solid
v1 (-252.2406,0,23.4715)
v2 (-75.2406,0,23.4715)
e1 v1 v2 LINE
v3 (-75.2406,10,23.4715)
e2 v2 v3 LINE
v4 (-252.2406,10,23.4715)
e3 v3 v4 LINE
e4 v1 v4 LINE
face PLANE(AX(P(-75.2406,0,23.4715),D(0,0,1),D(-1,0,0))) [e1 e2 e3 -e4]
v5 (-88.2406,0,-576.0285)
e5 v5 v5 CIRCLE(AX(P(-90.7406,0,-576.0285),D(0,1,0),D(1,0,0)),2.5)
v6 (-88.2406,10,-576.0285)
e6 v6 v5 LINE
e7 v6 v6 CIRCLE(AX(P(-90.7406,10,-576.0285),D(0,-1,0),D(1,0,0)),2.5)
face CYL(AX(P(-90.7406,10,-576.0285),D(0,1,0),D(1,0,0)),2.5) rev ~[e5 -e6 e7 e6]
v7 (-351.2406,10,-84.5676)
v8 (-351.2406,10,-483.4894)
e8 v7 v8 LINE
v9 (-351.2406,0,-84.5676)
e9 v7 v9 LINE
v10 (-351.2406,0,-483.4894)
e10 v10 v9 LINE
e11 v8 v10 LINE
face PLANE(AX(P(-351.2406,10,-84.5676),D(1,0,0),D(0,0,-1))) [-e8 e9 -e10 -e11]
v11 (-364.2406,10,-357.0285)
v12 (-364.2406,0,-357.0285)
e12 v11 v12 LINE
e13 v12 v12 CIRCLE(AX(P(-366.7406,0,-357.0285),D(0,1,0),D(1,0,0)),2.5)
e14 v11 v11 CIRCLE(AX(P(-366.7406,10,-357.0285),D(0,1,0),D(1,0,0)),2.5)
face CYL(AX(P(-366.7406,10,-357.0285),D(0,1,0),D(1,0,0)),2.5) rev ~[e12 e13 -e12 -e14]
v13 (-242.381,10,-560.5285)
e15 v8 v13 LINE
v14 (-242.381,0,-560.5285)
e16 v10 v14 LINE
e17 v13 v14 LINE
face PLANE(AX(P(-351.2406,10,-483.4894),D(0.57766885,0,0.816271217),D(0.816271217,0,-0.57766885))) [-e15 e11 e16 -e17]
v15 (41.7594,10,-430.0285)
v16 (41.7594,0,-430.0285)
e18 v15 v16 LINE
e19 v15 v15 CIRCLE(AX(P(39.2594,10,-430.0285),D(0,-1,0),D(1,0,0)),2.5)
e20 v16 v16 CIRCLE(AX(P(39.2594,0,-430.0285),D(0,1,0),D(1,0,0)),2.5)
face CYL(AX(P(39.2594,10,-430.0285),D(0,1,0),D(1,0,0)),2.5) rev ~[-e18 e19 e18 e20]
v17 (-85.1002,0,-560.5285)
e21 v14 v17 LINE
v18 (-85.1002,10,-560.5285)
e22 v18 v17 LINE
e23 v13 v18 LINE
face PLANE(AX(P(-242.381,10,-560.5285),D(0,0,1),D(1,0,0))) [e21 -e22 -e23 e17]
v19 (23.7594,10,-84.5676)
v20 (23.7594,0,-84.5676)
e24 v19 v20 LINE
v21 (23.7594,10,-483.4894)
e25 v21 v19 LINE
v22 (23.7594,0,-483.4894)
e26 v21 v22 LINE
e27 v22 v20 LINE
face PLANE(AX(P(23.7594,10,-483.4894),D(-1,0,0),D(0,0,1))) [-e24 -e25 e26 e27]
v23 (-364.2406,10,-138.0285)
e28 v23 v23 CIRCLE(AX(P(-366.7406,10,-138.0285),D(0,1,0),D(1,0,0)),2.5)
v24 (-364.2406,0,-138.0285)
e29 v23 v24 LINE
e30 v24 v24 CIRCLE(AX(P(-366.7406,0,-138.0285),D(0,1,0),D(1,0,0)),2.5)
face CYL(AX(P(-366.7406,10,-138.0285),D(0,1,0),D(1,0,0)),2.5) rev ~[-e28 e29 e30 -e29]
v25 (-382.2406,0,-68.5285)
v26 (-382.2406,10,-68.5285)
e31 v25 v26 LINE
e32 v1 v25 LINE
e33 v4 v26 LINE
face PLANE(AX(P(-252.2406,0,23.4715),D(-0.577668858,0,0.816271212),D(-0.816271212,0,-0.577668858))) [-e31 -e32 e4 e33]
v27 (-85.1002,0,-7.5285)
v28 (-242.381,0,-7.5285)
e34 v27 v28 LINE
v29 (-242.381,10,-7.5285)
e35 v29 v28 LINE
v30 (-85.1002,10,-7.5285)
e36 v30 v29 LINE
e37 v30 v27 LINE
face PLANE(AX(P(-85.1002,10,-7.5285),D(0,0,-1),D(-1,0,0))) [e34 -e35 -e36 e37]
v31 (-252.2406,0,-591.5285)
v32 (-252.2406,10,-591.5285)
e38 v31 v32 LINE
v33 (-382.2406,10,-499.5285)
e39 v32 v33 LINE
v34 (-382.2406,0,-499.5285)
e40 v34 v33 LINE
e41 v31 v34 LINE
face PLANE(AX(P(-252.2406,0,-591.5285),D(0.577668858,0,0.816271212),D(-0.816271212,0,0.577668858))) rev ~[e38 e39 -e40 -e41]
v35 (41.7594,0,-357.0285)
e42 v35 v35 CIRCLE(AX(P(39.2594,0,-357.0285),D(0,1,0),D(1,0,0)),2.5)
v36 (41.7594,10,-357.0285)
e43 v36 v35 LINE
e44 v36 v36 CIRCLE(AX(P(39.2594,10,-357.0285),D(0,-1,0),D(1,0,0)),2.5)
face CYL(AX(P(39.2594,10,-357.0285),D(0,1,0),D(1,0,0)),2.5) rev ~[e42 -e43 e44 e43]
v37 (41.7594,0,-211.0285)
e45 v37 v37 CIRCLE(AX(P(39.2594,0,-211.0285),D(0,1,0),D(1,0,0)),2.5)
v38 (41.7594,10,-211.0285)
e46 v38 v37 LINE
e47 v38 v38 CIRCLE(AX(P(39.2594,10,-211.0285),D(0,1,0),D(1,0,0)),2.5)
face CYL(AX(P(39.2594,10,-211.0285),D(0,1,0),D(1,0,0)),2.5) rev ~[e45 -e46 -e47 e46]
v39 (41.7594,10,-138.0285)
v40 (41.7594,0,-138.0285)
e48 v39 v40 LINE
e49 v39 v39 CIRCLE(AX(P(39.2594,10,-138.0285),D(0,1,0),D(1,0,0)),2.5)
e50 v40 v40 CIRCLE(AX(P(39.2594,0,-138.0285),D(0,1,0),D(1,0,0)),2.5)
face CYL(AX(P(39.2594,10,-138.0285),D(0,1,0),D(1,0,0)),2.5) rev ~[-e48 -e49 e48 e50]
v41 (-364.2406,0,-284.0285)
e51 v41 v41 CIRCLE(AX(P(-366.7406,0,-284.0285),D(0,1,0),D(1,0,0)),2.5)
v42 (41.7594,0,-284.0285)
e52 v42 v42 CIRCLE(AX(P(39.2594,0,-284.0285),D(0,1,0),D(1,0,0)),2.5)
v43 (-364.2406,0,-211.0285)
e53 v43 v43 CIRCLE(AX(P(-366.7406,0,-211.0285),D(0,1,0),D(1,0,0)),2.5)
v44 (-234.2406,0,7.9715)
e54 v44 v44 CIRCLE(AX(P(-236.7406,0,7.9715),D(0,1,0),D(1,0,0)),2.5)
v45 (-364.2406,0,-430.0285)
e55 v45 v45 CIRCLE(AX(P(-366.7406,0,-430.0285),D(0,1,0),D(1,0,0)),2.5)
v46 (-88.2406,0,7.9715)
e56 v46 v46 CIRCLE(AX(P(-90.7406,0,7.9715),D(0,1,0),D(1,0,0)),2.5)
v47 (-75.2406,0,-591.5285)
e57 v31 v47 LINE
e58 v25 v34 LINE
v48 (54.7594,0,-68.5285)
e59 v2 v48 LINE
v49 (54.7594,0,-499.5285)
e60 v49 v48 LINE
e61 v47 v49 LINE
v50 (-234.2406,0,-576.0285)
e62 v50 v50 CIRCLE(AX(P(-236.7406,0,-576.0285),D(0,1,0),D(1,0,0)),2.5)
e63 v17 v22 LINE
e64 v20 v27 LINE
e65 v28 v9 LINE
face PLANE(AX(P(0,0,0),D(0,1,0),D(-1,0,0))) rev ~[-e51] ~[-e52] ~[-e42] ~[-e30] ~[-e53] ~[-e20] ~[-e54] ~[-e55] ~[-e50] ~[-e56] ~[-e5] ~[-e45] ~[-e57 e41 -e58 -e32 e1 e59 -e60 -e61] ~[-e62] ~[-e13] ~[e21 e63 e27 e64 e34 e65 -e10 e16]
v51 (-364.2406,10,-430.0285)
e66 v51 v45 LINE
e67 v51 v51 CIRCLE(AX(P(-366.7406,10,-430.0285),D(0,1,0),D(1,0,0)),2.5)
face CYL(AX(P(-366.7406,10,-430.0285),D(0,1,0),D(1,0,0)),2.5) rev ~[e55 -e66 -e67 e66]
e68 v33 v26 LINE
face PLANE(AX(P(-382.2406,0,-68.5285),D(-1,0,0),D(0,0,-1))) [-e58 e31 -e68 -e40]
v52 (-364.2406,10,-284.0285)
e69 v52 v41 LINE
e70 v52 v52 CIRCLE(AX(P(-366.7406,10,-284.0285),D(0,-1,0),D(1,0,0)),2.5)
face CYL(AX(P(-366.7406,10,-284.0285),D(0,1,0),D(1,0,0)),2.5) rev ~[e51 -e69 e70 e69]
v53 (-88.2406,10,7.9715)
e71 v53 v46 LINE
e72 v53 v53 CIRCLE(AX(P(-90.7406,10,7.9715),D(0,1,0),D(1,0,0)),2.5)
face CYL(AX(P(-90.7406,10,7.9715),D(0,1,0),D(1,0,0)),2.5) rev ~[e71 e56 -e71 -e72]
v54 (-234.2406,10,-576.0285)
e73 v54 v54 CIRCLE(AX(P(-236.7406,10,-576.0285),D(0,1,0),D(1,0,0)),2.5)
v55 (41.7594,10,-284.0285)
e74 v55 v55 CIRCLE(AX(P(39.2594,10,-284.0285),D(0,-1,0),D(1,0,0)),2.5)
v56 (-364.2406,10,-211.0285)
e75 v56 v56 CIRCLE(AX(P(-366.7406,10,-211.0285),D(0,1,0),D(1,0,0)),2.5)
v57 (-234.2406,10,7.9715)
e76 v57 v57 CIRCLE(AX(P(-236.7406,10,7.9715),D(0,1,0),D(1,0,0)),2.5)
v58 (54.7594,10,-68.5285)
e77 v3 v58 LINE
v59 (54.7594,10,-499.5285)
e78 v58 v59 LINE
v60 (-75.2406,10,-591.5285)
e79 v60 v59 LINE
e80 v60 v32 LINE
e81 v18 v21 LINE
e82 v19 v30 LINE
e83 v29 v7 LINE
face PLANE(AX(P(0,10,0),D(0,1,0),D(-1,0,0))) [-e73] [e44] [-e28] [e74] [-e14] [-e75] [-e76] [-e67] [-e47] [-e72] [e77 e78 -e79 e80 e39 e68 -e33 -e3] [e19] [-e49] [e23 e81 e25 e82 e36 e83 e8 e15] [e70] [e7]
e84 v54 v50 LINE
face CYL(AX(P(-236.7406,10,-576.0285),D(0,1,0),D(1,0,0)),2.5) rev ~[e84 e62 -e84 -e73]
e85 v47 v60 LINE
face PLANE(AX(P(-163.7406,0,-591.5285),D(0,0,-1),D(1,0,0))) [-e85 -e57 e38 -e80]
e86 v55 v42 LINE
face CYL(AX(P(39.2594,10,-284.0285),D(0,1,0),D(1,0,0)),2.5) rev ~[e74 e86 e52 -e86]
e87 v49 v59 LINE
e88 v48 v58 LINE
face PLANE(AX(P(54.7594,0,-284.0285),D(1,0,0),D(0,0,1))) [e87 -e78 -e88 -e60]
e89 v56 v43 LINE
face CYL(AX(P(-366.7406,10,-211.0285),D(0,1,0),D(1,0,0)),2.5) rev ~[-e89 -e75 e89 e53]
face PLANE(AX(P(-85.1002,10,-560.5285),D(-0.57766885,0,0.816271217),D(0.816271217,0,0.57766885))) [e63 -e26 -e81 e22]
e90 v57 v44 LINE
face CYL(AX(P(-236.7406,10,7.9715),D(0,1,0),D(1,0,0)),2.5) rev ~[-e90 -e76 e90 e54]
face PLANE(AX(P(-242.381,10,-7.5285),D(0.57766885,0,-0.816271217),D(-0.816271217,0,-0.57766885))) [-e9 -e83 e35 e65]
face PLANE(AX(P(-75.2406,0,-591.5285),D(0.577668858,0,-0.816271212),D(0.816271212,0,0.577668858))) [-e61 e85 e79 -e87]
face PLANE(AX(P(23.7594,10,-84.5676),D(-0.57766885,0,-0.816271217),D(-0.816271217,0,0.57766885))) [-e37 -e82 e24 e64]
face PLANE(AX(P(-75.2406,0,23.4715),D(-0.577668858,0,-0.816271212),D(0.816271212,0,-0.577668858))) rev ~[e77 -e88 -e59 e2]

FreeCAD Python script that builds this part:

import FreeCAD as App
import Part
import Sketcher

V = App.Vector
Q = App.Units.Quantity

doc = App.newDocument("Part")
body = doc.addObject("PartDesign::Body", "Body")

# Sketch on XZ plane
sketch1 = body.newObject("Sketcher::SketchObject", "Sketch")
sketch1.AttachmentSupport = (doc.getObject("XZ_Plane"), [""])
sketch1.MapMode = "FlatFace"
sketch1.addGeometry(Part.LineSegment(V(-75, 23, 0), V(55, -69, 0)), False)
sketch1.addGeometry(Part.LineSegment(V(55, -69, 0), V(55, -500, 0)), False)
sketch1.addGeometry(Part.LineSegment(V(55, -500, 0), V(-75, -592, 0)), False)
sketch1.addGeometry(Part.LineSegment(V(-75, -592, 0), V(-252, -592, 0)), False)
sketch1.addGeometry(Part.LineSegment(V(-252, -592, 0), V(-382, -500, 0)), False)
sketch1.addGeometry(Part.LineSegment(V(-382, -500, 0), V(-382, -69, 0)), False)
sketch1.addGeometry(Part.LineSegment(V(-382, -69, 0), V(-252, 23, 0)), False)
sketch1.addGeometry(Part.LineSegment(V(-252, 23, 0), V(-75, 23, 0)), False)
sketch1.addConstraint(Sketcher.Constraint("Coincident", 0, 2, 1, 1))
sketch1.addConstraint(Sketcher.Constraint("Coincident", 1, 2, 2, 1))
sketch1.addConstraint(Sketcher.Constraint("Coincident", 2, 2, 3, 1))
sketch1.addConstraint(Sketcher.Constraint("Coincident", 3, 2, 4, 1))
sketch1.addConstraint(Sketcher.Constraint("Coincident", 4, 2, 5, 1))
sketch1.addConstraint(Sketcher.Constraint("Coincident", 5, 2, 6, 1))
sketch1.addConstraint(Sketcher.Constraint("Coincident", 6, 2, 7, 1))
sketch1.addConstraint(Sketcher.Constraint("Coincident", 7, 2, 0, 1))
sketch1.addConstraint(Sketcher.Constraint("Vertical", 1))
sketch1.addConstraint(Sketcher.Constraint("Horizontal", 3))
sketch1.addConstraint(Sketcher.Constraint("Vertical", 5))
sketch1.addConstraint(Sketcher.Constraint("Horizontal", 7))
sketch1.addConstraint(Sketcher.Constraint("Parallel", 0, 4))
sketch1.addConstraint(Sketcher.Constraint("Parallel", 2, 6))
sketch1.addConstraint(Sketcher.Constraint("Horizontal", 1, 2, 4, 2))
sketch1.addConstraint(Sketcher.Constraint("Horizontal", 0, 2, 5, 2))
sketch1.addConstraint(Sketcher.Constraint("Vertical", 3, 2, 6, 2))
sketch1.addConstraint(Sketcher.Constraint("Vertical", 2, 2, 7, 2))
sketch1.addConstraint(Sketcher.Constraint("DistanceX", 4, 2, 1, 2, Q("437 mm")))
sketch1.addConstraint(Sketcher.Constraint("DistanceY", 3, 2, 6, 2, Q("615 mm")))
sketch1.addConstraint(Sketcher.Constraint("DistanceX", 3, 2, 3, 1, Q("177 mm")))
sketch1.addConstraint(Sketcher.Constraint("DistanceY", 1, 2, 1, 1, Q("431 mm")))
sketch1.addConstraint(Sketcher.Constraint("DistanceX", -1, 1, 0, 2, Q("54.7594 mm")))
sketch1.addConstraint(Sketcher.Constraint("DistanceY", 0, 2, -1, 1, Q("68.5285 mm")))
pad1 = body.newObject("PartDesign::Pad", "Pad")
pad1.Profile = sketch1
pad1.Length = 10
pad1.Reversed = True

# Sketch on XZ plane
sketch2 = body.newObject("Sketcher::SketchObject", "Sketch001")
sketch2.AttachmentSupport = (doc.getObject("XZ_Plane"), [""])
sketch2.MapMode = "FlatFace"
sketch2.AttachmentOffset = App.Placement(V(0, 0, -10), App.Rotation())
sketch2.addGeometry(Part.Circle(V(-90.7, -576, 0), V(0, 0, 1), 2.5), False)
sketch2.addGeometry(Part.Circle(V(-366.7, -284, 0), V(0, 0, 1), 2.5), False)
sketch2.addGeometry(Part.Circle(V(39.3, -284, 0), V(0, 0, 1), 2.5), False)
sketch2.addGeometry(Part.Circle(V(39.3, -430, 0), V(0, 0, 1), 2.5), False)
sketch2.addGeometry(Part.Circle(V(39.3, -357, 0), V(0, 0, 1), 2.5), False)
sketch2.addGeometry(Part.Circle(V(39.3, -211, 0), V(0, 0, 1), 2.5), False)
sketch2.addGeometry(Part.Circle(V(-366.7, -357, 0), V(0, 0, 1), 2.5), False)
sketch2.addGeometry(Part.Circle(V(-366.7, -211, 0), V(0, 0, 1), 2.5), False)
sketch2.addGeometry(Part.Circle(V(39.3, -138, 0), V(0, 0, 1), 2.5), False)
sketch2.addGeometry(Part.Circle(V(-90.7, 8, 0), V(0, 0, 1), 2.5), False)
sketch2.addGeometry(Part.Circle(V(-366.7, -430, 0), V(0, 0, 1), 2.5), False)
sketch2.addGeometry(Part.Circle(V(-236.7, -576, 0), V(0, 0, 1), 2.5), False)
sketch2.addGeometry(Part.Circle(V(-236.7, 8, 0), V(0, 0, 1), 2.5), False)
sketch2.addGeometry(Part.Circle(V(-366.7, -138, 0), V(0, 0, 1), 2.5), False)
sketch2.addConstraint(Sketcher.Constraint("Equal", 0, 1))
sketch2.addConstraint(Sketcher.Constraint("Equal", 1, 2))
sketch2.addConstraint(Sketcher.Constraint("Equal", 2, 3))
sketch2.addConstraint(Sketcher.Constraint("Equal", 3, 4))
sketch2.addConstraint(Sketcher.Constraint("Equal", 4, 5))
sketch2.addConstraint(Sketcher.Constraint("Equal", 5, 6))
sketch2.addConstraint(Sketcher.Constraint("Equal", 6, 7))
sketch2.addConstraint(Sketcher.Constraint("Equal", 7, 8))
sketch2.addConstraint(Sketcher.Constraint("Equal", 8, 9))
sketch2.addConstraint(Sketcher.Constraint("Equal", 9, 10))
sketch2.addConstraint(Sketcher.Constraint("Equal", 10, 11))
sketch2.addConstraint(Sketcher.Constraint("Equal", 11, 12))
sketch2.addConstraint(Sketcher.Constraint("Equal", 12, 13))
sketch2.addConstraint(Sketcher.Constraint("Horizontal", 1, 3, 2, 3))
sketch2.addConstraint(Sketcher.Constraint("Horizontal", 4, 3, 6, 3))
sketch2.addConstraint(Sketcher.Constraint("Horizontal", 5, 3, 7, 3))
sketch2.addConstraint(Sketcher.Constraint("Horizontal", 3, 3, 10, 3))
sketch2.addConstraint(Sketcher.Constraint("Horizontal", 0, 3, 11, 3))
sketch2.addConstraint(Sketcher.Constraint("Horizontal", 9, 3, 12, 3))
sketch2.addConstraint(Sketcher.Constraint("Horizontal", 8, 3, 13, 3))
sketch2.addConstraint(Sketcher.Constraint("Vertical", 2, 3, 3, 3))
sketch2.addConstraint(Sketcher.Constraint("Vertical", 3, 3, 4, 3))
sketch2.addConstraint(Sketcher.Constraint("Vertical", 4, 3, 5, 3))
sketch2.addConstraint(Sketcher.Constraint("Vertical", 1, 3, 6, 3))
sketch2.addConstraint(Sketcher.Constraint("Vertical", 6, 3, 7, 3))
sketch2.addConstraint(Sketcher.Constraint("Vertical", 5, 3, 8, 3))
sketch2.addConstraint(Sketcher.Constraint("Vertical", 0, 3, 9, 3))
sketch2.addConstraint(Sketcher.Constraint("Vertical", 7, 3, 10, 3))
sketch2.addConstraint(Sketcher.Constraint("Vertical", 11, 3, 12, 3))
sketch2.addConstraint(Sketcher.Constraint("Vertical", 10, 3, 13, 3))
sketch2.addConstraint(Sketcher.Constraint("Diameter", 0, Q("5 mm")))
sketch2.addConstraint(Sketcher.Constraint("DistanceX", 0, 3, 2, 3, Q("130 mm")))
sketch2.addConstraint(Sketcher.Constraint("DistanceY", 3, 3, 2, 3, Q("146 mm")))
sketch2.addConstraint(Sketcher.Constraint("DistanceY", 0, 3, 3, 3, Q("146 mm")))
sketch2.addConstraint(Sketcher.Constraint("DistanceY", 4, 3, 2, 3, Q("73 mm")))
sketch2.addConstraint(Sketcher.Constraint("DistanceY", 2, 3, 5, 3, Q("73 mm")))
sketch2.addConstraint(Sketcher.Constraint("DistanceY", 5, 3, 8, 3, Q("73 mm")))
sketch2.addConstraint(Sketcher.Constraint("DistanceY", 8, 3, 9, 3, Q("146 mm")))
sketch2.addConstraint(Sketcher.Constraint("DistanceX", 11, 3, 0, 3, Q("146 mm")))
sketch2.addConstraint(Sketcher.Constraint("DistanceX", 10, 3, 11, 3, Q("130 mm")))
sketch2.addConstraint(Sketcher.Constraint("DistanceX", 0, 3, -1, 1, Q("90.7406 mm")))
sketch2.addConstraint(Sketcher.Constraint("DistanceY", 0, 3, -1, 1, Q("576.0285 mm")))
pocket1 = body.newObject("PartDesign::Pocket", "Pocket")
pocket1.Profile = sketch2
pocket1.Length = 10
pocket1.Reversed = True

# Sketch on XZ plane
sketch3 = body.newObject("Sketcher::SketchObject", "Sketch002")
sketch3.AttachmentSupport = (doc.getObject("XZ_Plane"), [""])
sketch3.MapMode = "FlatFace"
sketch3.AttachmentOffset = App.Placement(V(0, 0, -10), App.Rotation())
sketch3.addGeometry(Part.LineSegment(V(-351, -483, 0), V(-351, -85, 0)), False)
sketch3.addGeometry(Part.LineSegment(V(-351, -85, 0), V(-242, -8, 0)), False)
sketch3.addGeometry(Part.LineSegment(V(-242, -8, 0), V(-85, -8, 0)), False)
sketch3.addGeometry(Part.LineSegment(V(-85, -8, 0), V(24, -85, 0)), False)
sketch3.addGeometry(Part.LineSegment(V(24, -85, 0), V(24, -483, 0)), False)
sketch3.addGeometry(Part.LineSegment(V(24, -483, 0), V(-85, -561, 0)), False)
sketch3.addGeometry(Part.LineSegment(V(-85, -561, 0), V(-242, -561, 0)), False)
sketch3.addGeometry(Part.LineSegment(V(-242, -561, 0), V(-351, -483, 0)), False)
sketch3.addConstraint(Sketcher.Constraint("Coincident", 0, 2, 1, 1))
sketch3.addConstraint(Sketcher.Constraint("Coincident", 1, 2, 2, 1))
sketch3.addConstraint(Sketcher.Constraint("Coincident", 2, 2, 3, 1))
sketch3.addConstraint(Sketcher.Constraint("Coincident", 3, 2, 4, 1))
sketch3.addConstraint(Sketcher.Constraint("Coincident", 4, 2, 5, 1))
sketch3.addConstraint(Sketcher.Constraint("Coincident", 5, 2, 6, 1))
sketch3.addConstraint(Sketcher.Constraint("Coincident", 6, 2, 7, 1))
sketch3.addConstraint(Sketcher.Constraint("Coincident", 7, 2, 0, 1))
sketch3.addConstraint(Sketcher.Constraint("Vertical", 0))
sketch3.addConstraint(Sketcher.Constraint("Horizontal", 2))
sketch3.addConstraint(Sketcher.Constraint("Vertical", 4))
sketch3.addConstraint(Sketcher.Constraint("Horizontal", 6))
sketch3.addConstraint(Sketcher.Constraint("Parallel", 1, 5))
sketch3.addConstraint(Sketcher.Constraint("Parallel", 3, 7))
sketch3.addConstraint(Sketcher.Constraint("Horizontal", 0, 2, 3, 2))
sketch3.addConstraint(Sketcher.Constraint("Horizontal", 4, 2, 7, 2))
sketch3.addConstraint(Sketcher.Constraint("Vertical", 2, 2, 5, 2))
sketch3.addConstraint(Sketcher.Constraint("Vertical", 1, 2, 6, 2))
sketch3.addConstraint(Sketcher.Constraint("DistanceX", 0, 2, 3, 2, Q("375 mm")))
sketch3.addConstraint(Sketcher.Constraint("DistanceY", 5, 2, 2, 2, Q("553 mm")))
sketch3.addConstraint(Sketcher.Constraint("Distance", 1, Q("133.362 mm")))
sketch3.addConstraint(Sketcher.Constraint("DistanceX", 2, 1, 2, 2, Q("157.2808 mm")))
sketch3.addConstraint(Sketcher.Constraint("DistanceX", 1, 2, -1, 1, Q("242.381 mm")))
sketch3.addConstraint(Sketcher.Constraint("DistanceY", 0, 2, -1, 1, Q("84.5676 mm")))
pocket2 = body.newObject("PartDesign::Pocket", "Pocket001")
pocket2.Profile = sketch3
pocket2.Length = 10
pocket2.Reversed = True

doc.recompute()
